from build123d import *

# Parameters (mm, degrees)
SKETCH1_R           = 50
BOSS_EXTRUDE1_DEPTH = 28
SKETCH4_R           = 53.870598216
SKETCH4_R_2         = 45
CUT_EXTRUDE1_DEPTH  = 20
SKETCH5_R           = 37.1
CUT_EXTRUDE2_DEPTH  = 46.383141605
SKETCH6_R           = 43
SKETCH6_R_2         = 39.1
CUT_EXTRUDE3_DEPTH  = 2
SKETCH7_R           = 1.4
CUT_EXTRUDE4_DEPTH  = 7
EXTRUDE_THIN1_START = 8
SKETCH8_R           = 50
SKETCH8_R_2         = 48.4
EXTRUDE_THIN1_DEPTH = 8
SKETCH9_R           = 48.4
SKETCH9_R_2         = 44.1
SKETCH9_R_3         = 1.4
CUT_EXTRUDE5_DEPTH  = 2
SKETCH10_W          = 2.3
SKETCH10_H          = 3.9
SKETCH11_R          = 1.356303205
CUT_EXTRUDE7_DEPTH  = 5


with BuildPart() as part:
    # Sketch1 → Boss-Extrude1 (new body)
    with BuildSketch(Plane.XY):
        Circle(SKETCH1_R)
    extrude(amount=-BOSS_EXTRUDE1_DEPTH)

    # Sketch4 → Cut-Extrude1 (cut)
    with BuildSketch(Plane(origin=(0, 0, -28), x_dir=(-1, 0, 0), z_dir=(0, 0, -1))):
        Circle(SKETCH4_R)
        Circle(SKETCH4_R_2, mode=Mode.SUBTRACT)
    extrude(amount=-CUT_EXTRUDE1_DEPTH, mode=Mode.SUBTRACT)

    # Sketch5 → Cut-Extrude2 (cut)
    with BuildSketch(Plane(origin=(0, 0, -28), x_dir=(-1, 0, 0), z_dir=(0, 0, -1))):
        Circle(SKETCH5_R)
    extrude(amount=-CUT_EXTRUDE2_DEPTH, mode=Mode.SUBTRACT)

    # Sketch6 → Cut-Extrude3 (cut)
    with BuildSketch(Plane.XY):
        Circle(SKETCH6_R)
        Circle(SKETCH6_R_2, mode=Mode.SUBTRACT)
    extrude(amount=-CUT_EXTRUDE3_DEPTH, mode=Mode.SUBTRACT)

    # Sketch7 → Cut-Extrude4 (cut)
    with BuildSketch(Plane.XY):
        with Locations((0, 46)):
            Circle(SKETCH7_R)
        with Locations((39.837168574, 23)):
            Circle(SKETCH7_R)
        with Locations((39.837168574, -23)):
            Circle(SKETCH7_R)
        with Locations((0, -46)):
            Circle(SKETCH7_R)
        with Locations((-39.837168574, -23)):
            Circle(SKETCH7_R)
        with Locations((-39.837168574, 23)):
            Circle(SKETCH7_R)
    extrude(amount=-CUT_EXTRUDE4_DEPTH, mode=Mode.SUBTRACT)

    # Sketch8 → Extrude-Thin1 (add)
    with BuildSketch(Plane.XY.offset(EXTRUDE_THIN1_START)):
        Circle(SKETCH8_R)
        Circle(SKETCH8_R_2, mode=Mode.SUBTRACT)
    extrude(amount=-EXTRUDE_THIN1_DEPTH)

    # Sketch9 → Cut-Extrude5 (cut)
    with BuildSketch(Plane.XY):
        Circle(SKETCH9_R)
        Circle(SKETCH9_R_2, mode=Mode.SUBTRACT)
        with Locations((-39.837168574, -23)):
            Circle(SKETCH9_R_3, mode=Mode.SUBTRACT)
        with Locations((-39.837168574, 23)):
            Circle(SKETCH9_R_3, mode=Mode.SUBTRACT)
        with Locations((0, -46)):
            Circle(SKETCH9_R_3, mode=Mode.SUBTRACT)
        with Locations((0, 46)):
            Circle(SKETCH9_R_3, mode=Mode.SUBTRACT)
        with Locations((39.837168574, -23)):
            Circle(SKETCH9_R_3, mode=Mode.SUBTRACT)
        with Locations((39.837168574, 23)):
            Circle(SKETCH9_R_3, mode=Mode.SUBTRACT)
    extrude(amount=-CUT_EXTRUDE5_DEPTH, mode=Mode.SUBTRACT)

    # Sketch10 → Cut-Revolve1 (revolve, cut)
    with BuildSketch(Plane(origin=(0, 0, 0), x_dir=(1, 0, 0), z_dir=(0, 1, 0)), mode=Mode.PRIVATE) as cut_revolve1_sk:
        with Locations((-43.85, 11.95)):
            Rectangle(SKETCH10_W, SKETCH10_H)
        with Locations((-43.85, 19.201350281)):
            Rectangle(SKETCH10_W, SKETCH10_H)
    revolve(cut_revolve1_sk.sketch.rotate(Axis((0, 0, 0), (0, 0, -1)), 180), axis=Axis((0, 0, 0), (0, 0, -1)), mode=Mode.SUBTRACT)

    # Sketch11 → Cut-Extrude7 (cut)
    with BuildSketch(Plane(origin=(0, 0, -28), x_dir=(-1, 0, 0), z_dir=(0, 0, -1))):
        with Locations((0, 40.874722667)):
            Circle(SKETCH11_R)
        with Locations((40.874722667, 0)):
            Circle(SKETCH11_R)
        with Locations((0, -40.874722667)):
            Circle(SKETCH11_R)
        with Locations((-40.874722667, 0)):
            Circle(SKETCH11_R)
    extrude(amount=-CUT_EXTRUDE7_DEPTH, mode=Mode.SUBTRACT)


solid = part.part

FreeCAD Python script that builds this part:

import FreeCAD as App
import Part
import Sketcher

V = App.Vector

doc = App.newDocument("Part")
body = doc.addObject("PartDesign::Body", "Body")

sketch1 = body.newObject("Sketcher::SketchObject", "Sketch")
sketch1.AttachmentSupport = (doc.getObject("XY_Plane"), [""])
sketch1.MapMode = "FlatFace"
sketch1.addGeometry(Part.Circle(V(0, 0, 0), V(0, 0, 1), 50), False)
sketch1.addConstraint(Sketcher.Constraint("Coincident", 0, 3, -1, 1))
sketch1.addConstraint(Sketcher.Constraint("Diameter", 0, 100.0))
pad1 = body.newObject("PartDesign::Pad", "Pad")
pad1.Profile = sketch1
pad1.Length = 28
pad1.Reversed = True

sketch2 = body.newObject("Sketcher::SketchObject", "Sketch001")
sketch2.AttachmentSupport = (doc.getObject("XY_Plane"), [""])
sketch2.MapMode = "FlatFace"
sketch2.AttachmentOffset = App.Placement(V(0, 0, -28), App.Rotation())
sketch2.addGeometry(Part.Circle(V(0, 0, 0), V(0, 0, 1), 53.870598), False)
sketch2.addGeometry(Part.Circle(V(0, 0, 0), V(0, 0, 1), 45), False)
sketch2.addConstraint(Sketcher.Constraint("Coincident", 0, 3, -1, 1))
sketch2.addConstraint(Sketcher.Constraint("Coincident", 1, 3, -1, 1))
sketch2.addConstraint(Sketcher.Constraint("Diameter", 1, 90.0))
sketch2.addConstraint(Sketcher.Constraint("Diameter", 0, 107.741196))
pocket1 = body.newObject("PartDesign::Pocket", "Pocket")
pocket1.Profile = sketch2
pocket1.Length = 20
pocket1.Reversed = True

sketch3 = body.newObject("Sketcher::SketchObject", "Sketch002")
sketch3.AttachmentSupport = (doc.getObject("XY_Plane"), [""])
sketch3.MapMode = "FlatFace"
sketch3.AttachmentOffset = App.Placement(V(0, 0, -28), App.Rotation())
sketch3.addGeometry(Part.Circle(V(0, 0, 0), V(0, 0, 1), 37.1), False)
sketch3.addConstraint(Sketcher.Constraint("Coincident", 0, 3, -1, 1))
sketch3.addConstraint(Sketcher.Constraint("Diameter", 0, 74.2))
pocket2 = body.newObject("PartDesign::Pocket", "Pocket001")
pocket2.Profile = sketch3
pocket2.Length = 46.383142
pocket2.Reversed = True

sketch4 = body.newObject("Sketcher::SketchObject", "Sketch003")
sketch4.AttachmentSupport = (doc.getObject("XY_Plane"), [""])
sketch4.MapMode = "FlatFace"
sketch4.addGeometry(Part.Circle(V(0, 0, 0), V(0, 0, 1), 43), False)
sketch4.addGeometry(Part.Circle(V(0, 0, 0), V(0, 0, 1), 39.1), False)
sketch4.addConstraint(Sketcher.Constraint("Coincident", 0, 3, -1, 1))
sketch4.addConstraint(Sketcher.Constraint("Coincident", 1, 3, -1, 1))
sketch4.addConstraint(Sketcher.Constraint("Diameter", 0, 86.0))
sketch4.addConstraint(Sketcher.Constraint("Diameter", 1, 78.2))
pocket3 = body.newObject("PartDesign::Pocket", "Pocket002")
pocket3.Profile = sketch4
pocket3.Length = 2

sketch5 = body.newObject("Sketcher::SketchObject", "Sketch004")
sketch5.AttachmentSupport = (doc.getObject("XY_Plane"), [""])
sketch5.MapMode = "FlatFace"
sketch5.addGeometry(Part.Circle(V(0, 46, 0), V(0, 0, 1), 1.4), False)
sketch5.addGeometry(Part.Circle(V(39.837169, 23, 0), V(0, 0, 1), 1.4), False)
sketch5.addGeometry(Part.Circle(V(39.837169, -23, 0), V(0, 0, 1), 1.4), False)
sketch5.addGeometry(Part.Circle(V(0, -46, 0), V(0, 0, 1), 1.4), False)
sketch5.addGeometry(Part.Circle(V(-39.837169, -23, 0), V(0, 0, 1), 1.4), False)
sketch5.addGeometry(Part.Circle(V(-39.837169, 23, 0), V(0, 0, 1), 1.4), False)
sketch5.addConstraint(Sketcher.Constraint("Equal", 0, 1))
sketch5.addConstraint(Sketcher.Constraint("Equal", 1, 2))
sketch5.addConstraint(Sketcher.Constraint("Equal", 2, 3))
sketch5.addConstraint(Sketcher.Constraint("Equal", 3, 4))
sketch5.addConstraint(Sketcher.Constraint("Equal", 4, 5))
sketch5.addConstraint(Sketcher.Constraint("Symmetric", 0, 3, 3, 3, -1, 1))
sketch5.addConstraint(Sketcher.Constraint("Symmetric", 1, 3, 4, 3, -1, 1))
sketch5.addConstraint(Sketcher.Constraint("Symmetric", 2, 3, 5, 3, -1, 1))
sketch5.addConstraint(Sketcher.Constraint("Symmetric", 2, 3, 4, 3, -2))
sketch5.addConstraint(Sketcher.Constraint("PointOnObject", 0, 3, -2))
sketch5.addConstraint(Sketcher.Constraint("Diameter", 0, 2.8))
sketch5.addConstraint(Sketcher.Constraint("DistanceY", -1, 1, 0, 3, 46.0))
sketch5.addConstraint(Sketcher.Constraint("DistanceY", -1, 1, 1, 3, 23.0))
sketch5.addConstraint(Sketcher.Constraint("DistanceX", -1, 1, 1, 3, 39.837169))
pocket4 = body.newObject("PartDesign::Pocket", "Pocket003")
pocket4.Profile = sketch5
pocket4.Length = 7

sketch6 = body.newObject("Sketcher::SketchObject", "Sketch005")
sketch6.AttachmentSupport = (doc.getObject("XY_Plane"), [""])
sketch6.MapMode = "FlatFace"
sketch6.AttachmentOffset = App.Placement(V(0, 0, 8), App.Rotation())
sketch6.addGeometry(Part.Circle(V(0, 0, 0), V(0, 0, 1), 50), False)
sketch6.addGeometry(Part.Circle(V(0, 0, 0), V(0, 0, 1), 48.4), False)
sketch6.addConstraint(Sketcher.Constraint("Coincident", 0, 3, -1, 1))
sketch6.addConstraint(Sketcher.Constraint("Coincident", 1, 3, -1, 1))
sketch6.addConstraint(Sketcher.Constraint("Diameter", 0, 100.0))
sketch6.addConstraint(Sketcher.Constraint("Diameter", 1, 96.8))
pad2 = body.newObject("PartDesign::Pad", "Pad001")
pad2.Profile = sketch6
pad2.Length = 8
pad2.Reversed = True

sketch7 = body.newObject("Sketcher::SketchObject", "Sketch006")
sketch7.AttachmentSupport = (doc.getObject("XY_Plane"), [""])
sketch7.MapMode = "FlatFace"
sketch7.addGeometry(Part.Circle(V(0, 0, 0), V(0, 0, 1), 48.4), False)
sketch7.addGeometry(Part.Circle(V(0, -46, 0), V(0, 0, 1), 1.4), False)
sketch7.addGeometry(Part.Circle(V(-39.837169, -23, 0), V(0, 0, 1), 1.4), False)
sketch7.addGeometry(Part.Circle(V(0, 0, 0), V(0, 0, 1), 44.1), False)
sketch7.addGeometry(Part.Circle(V(39.837169, -23, 0), V(0, 0, 1), 1.4), False)
sketch7.addGeometry(Part.Circle(V(-39.837169, 23, 0), V(0, 0, 1), 1.4), False)
sketch7.addGeometry(Part.Circle(V(0, 46, 0), V(0, 0, 1), 1.4), False)
sketch7.addGeometry(Part.Circle(V(39.837169, 23, 0), V(0, 0, 1), 1.4), False)
sketch7.addConstraint(Sketcher.Constraint("Coincident", 0, 3, -1, 1))
sketch7.addConstraint(Sketcher.Constraint("Coincident", 3, 3, -1, 1))
sketch7.addConstraint(Sketcher.Constraint("Equal", 1, 2))
sketch7.addConstraint(Sketcher.Constraint("Equal", 2, 4))
sketch7.addConstraint(Sketcher.Constraint("Equal", 4, 5))
sketch7.addConstraint(Sketcher.Constraint("Equal", 5, 6))
sketch7.addConstraint(Sketcher.Constraint("Equal", 6, 7))
sketch7.addConstraint(Sketcher.Constraint("Symmetric", 4, 3, 5, 3, -1, 1))
sketch7.addConstraint(Sketcher.Constraint("Symmetric", 1, 3, 6, 3, -1, 1))
sketch7.addConstraint(Sketcher.Constraint("Symmetric", 2, 3, 7, 3, -1, 1))
sketch7.addConstraint(Sketcher.Constraint("Symmetric", 2, 3, 4, 3, -2))
sketch7.addConstraint(Sketcher.Constraint("PointOnObject", 1, 3, -2))
sketch7.addConstraint(Sketcher.Constraint("Diameter", 0, 96.8))
sketch7.addConstraint(Sketcher.Constraint("Diameter", 1, 2.8))
sketch7.addConstraint(Sketcher.Constraint("Diameter", 3, 88.2))
sketch7.addConstraint(Sketcher.Constraint("DistanceY", 1, 3, -1, 1, 46.0))
sketch7.addConstraint(Sketcher.Constraint("DistanceY", 2, 3, -1, 1, 23.0))
sketch7.addConstraint(Sketcher.Constraint("DistanceX", 2, 3, -1, 1, 39.837169))
pocket5 = body.newObject("PartDesign::Pocket", "Pocket004")
pocket5.Profile = sketch7
pocket5.Length = 2

sketch8 = body.newObject("Sketcher::SketchObject", "Sketch007")
sketch8.AttachmentSupport = (doc.getObject("XZ_Plane"), [""])
sketch8.MapMode = "FlatFace"
sketch8.addGeometry(Part.LineSegment(V(-45, -13.9, 0), V(-45, -10, 0)), False)
sketch8.addGeometry(Part.LineSegment(V(-45, -10, 0), V(-42.7, -10, 0)), False)
sketch8.addGeometry(Part.LineSegment(V(-42.7, -10, 0), V(-42.7, -13.9, 0)), False)
sketch8.addGeometry(Part.LineSegment(V(-42.7, -13.9, 0), V(-45, -13.9, 0)), False)
sketch8.addGeometry(Part.LineSegment(V(-45, -21.15135, 0), V(-45, -17.25135, 0)), False)
sketch8.addGeometry(Part.LineSegment(V(-45, -17.25135, 0), V(-42.7, -17.25135, 0)), False)
sketch8.addGeometry(Part.LineSegment(V(-42.7, -17.25135, 0), V(-42.7, -21.15135, 0)), False)
sketch8.addGeometry(Part.LineSegment(V(-42.7, -21.15135, 0), V(-45, -21.15135, 0)), False)
sketch8.addConstraint(Sketcher.Constraint("Coincident", 0, 2, 1, 1))
sketch8.addConstraint(Sketcher.Constraint("Coincident", 1, 2, 2, 1))
sketch8.addConstraint(Sketcher.Constraint("Coincident", 2, 2, 3, 1))
sketch8.addConstraint(Sketcher.Constraint("Coincident", 3, 2, 0, 1))
sketch8.addConstraint(Sketcher.Constraint("Coincident", 4, 2, 5, 1))
sketch8.addConstraint(Sketcher.Constraint("Coincident", 5, 2, 6, 1))
sketch8.addConstraint(Sketcher.Constraint("Coincident", 6, 2, 7, 1))
sketch8.addConstraint(Sketcher.Constraint("Coincident", 7, 2, 4, 1))
sketch8.addConstraint(Sketcher.Constraint("Vertical", 0))
sketch8.addConstraint(Sketcher.Constraint("Horizontal", 1))
sketch8.addConstraint(Sketcher.Constraint("Vertical", 2))
sketch8.addConstraint(Sketcher.Constraint("Horizontal", 3))
sketch8.addConstraint(Sketcher.Constraint("Vertical", 4))
sketch8.addConstraint(Sketcher.Constraint("Horizontal", 5))
sketch8.addConstraint(Sketcher.Constraint("Vertical", 6))
sketch8.addConstraint(Sketcher.Constraint("Horizontal", 7))
sketch8.addConstraint(Sketcher.Constraint("Vertical", 3, 2, 4, 2))
sketch8.addConstraint(Sketcher.Constraint("Vertical", 2, 2, 5, 2))
sketch8.addConstraint(Sketcher.Constraint("Equal", 2, 4))
sketch8.addConstraint(Sketcher.Constraint("DistanceX", 1, 1, 1, 2, 2.3))
sketch8.addConstraint(Sketcher.Constraint("DistanceY", 0, 1, 0, 2, 3.9))
sketch8.addConstraint(Sketcher.Constraint("DistanceX", 0, 2, -1, 1, 45.0))
sketch8.addConstraint(Sketcher.Constraint("DistanceY", 0, 2, -1, 1, 10.0))
sketch8.addConstraint(Sketcher.Constraint("DistanceY", 4, 2, -1, 1, 17.25135))
groove = body.newObject("PartDesign::Groove", "Groove")
groove.Profile = sketch8
groove.ReferenceAxis = (sketch8, ["V_Axis"])
groove.Angle = 360

sketch9 = body.newObject("Sketcher::SketchObject", "Sketch008")
sketch9.AttachmentSupport = (doc.getObject("XY_Plane"), [""])
sketch9.MapMode = "FlatFace"
sketch9.AttachmentOffset = App.Placement(V(0, 0, -28), App.Rotation())
sketch9.addGeometry(Part.Circle(V(0, 40.874723, 0), V(0, 0, 1), 1.356303), False)
sketch9.addGeometry(Part.Circle(V(-40.874723, 0, 0), V(0, 0, 1), 1.356303), False)
sketch9.addGeometry(Part.Circle(V(0, -40.874723, 0), V(0, 0, 1), 1.356303), False)
sketch9.addGeometry(Part.Circle(V(40.874723, 0, 0), V(0, 0, 1), 1.356303), False)
sketch9.addConstraint(Sketcher.Constraint("Equal", 0, 1))
sketch9.addConstraint(Sketcher.Constraint("Equal", 1, 2))
sketch9.addConstraint(Sketcher.Constraint("Equal", 2, 3))
sketch9.addConstraint(Sketcher.Constraint("Symmetric", 0, 3, 2, 3, -1, 1))
sketch9.addConstraint(Sketcher.Constraint("Symmetric", 1, 3, 3, 3, -1, 1))
sketch9.addConstraint(Sketcher.Constraint("PointOnObject", 0, 3, -2))
sketch9.addConstraint(Sketcher.Constraint("PointOnObject", 1, 3, -1))
sketch9.addConstraint(Sketcher.Constraint("Diameter", 0, 2.712606))
sketch9.addConstraint(Sketcher.Constraint("DistanceY", -1, 1, 0, 3, 40.874723))
sketch9.addConstraint(Sketcher.Constraint("DistanceX", 1, 3, -1, 1, 40.874723))
pocket6 = body.newObject("PartDesign::Pocket", "Pocket005")
pocket6.Profile = sketch9
pocket6.Length = 5
pocket6.Reversed = True

doc.recompute()
